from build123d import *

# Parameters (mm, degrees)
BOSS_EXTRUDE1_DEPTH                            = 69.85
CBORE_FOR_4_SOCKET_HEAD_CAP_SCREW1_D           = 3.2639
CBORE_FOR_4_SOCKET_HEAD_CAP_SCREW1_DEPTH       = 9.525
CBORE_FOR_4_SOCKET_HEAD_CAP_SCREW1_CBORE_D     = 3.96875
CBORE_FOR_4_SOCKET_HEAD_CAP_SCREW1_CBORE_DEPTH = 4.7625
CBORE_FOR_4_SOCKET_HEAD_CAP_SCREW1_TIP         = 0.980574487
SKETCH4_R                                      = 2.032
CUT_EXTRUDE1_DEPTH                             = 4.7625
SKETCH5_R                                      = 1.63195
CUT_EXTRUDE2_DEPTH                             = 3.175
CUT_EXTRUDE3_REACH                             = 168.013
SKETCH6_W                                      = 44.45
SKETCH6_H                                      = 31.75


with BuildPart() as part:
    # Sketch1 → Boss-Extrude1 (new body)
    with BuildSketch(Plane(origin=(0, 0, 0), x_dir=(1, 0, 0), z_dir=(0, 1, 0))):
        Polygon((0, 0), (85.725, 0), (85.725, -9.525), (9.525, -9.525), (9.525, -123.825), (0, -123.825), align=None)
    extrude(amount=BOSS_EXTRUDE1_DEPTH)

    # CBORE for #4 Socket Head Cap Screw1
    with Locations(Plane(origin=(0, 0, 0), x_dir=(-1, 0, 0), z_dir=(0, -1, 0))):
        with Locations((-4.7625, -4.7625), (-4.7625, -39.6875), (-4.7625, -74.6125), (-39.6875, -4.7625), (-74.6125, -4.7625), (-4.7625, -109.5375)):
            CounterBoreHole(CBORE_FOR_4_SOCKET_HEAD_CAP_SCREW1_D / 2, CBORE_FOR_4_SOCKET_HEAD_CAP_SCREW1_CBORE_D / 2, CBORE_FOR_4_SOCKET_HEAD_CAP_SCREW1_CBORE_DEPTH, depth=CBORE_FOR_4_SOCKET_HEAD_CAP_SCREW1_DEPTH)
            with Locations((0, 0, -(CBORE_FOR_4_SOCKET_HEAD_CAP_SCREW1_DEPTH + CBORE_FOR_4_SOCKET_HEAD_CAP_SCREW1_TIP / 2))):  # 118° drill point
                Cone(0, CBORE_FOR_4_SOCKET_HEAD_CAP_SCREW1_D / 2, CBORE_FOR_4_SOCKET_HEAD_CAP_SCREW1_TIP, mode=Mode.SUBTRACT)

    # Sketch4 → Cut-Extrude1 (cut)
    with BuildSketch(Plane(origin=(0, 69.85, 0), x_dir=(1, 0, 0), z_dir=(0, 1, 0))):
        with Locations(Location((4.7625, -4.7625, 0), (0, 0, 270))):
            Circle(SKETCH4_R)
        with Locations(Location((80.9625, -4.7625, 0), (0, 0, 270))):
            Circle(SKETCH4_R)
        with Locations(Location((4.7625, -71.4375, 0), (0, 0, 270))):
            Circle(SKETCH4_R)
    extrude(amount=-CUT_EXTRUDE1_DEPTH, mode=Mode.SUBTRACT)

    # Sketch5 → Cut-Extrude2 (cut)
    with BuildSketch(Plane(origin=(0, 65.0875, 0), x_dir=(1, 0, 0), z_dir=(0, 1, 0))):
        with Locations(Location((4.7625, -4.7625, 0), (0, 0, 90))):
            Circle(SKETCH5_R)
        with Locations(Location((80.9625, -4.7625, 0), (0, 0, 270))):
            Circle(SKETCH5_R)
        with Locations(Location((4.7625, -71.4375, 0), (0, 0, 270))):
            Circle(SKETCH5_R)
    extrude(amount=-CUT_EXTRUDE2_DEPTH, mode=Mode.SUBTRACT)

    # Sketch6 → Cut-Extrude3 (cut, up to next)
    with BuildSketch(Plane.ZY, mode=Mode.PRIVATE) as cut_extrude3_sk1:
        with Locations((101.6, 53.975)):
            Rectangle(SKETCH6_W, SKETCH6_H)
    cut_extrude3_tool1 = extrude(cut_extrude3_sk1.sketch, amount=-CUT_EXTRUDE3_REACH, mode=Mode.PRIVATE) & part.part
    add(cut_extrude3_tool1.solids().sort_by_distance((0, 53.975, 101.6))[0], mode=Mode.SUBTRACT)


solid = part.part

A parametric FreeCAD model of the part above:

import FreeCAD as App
import Part
import Sketcher

V = App.Vector
Q = App.Units.Quantity


def add_polygon(sketch, points):
    """Adds a closed chain of lines whose ends are joined by coincident constraints."""
    first, n = sketch.GeometryCount, len(points)
    for a, b in zip(points, points[1:] + points[:1]):
        sketch.addGeometry(Part.LineSegment(App.Vector(*a, 0), App.Vector(*b, 0)), False)
    for i in range(n):
        sketch.addConstraint(Sketcher.Constraint("Coincident", first + i, 2, first + (i + 1) % n, 1))

doc = App.newDocument("Part")
params = doc.addObject("Spreadsheet::Sheet", "Params")
for row, (alias, value) in enumerate([
    ("sketch1_width", "3 in"),
    ("sketch1_height", "4.5 in"),
    ("sketch1_width2", "3.375 in"),
    ("pad1_length", "2.75 in"),
    ("hole_diameter", "0.1285 in"),
    ("hole_depth", "0.375 in"),
    ("hole_cbore_diameter", "0.15625 in"),
    ("hole_cbore_depth", "0.1875 in"),
    ("sketch3_diameter", "0.16 in"),
    ("pocket1_length", "0.1875 in"),
    ("pocket2_length", "0.125 in"),
    ("sketch5_width", "1.25 in"),
    ("sketch5_height", "1.75 in"),
], start=1):
    params.set(f"A{row}", alias)
    params.set(f"B{row}", "=" + value)
    params.setAlias(f"B{row}", alias)

body = doc.addObject("PartDesign::Body", "Body")

# Sketch on XZ plane
sketch1 = doc.addObject("Sketcher::SketchObject", "Sketch")
body.addObject(sketch1)
sketch1.AttachmentSupport = (doc.XZ_Plane, [""])
sketch1.MapMode = "FlatFace"
add_polygon(sketch1, [(86, 0), (0, 0), (0, 124), (10, 124), (10, 10), (86, 10)])  # lines 0-5
sketch1.addConstraint([
    Sketcher.Constraint("Horizontal", 0),
    Sketcher.Constraint("Vertical", 1),
    Sketcher.Constraint("Horizontal", 2),
    Sketcher.Constraint("Vertical", 3),
    Sketcher.Constraint("Horizontal", 4),
    Sketcher.Constraint("Vertical", 5),
    Sketcher.Constraint("Coincident", 0, 2, -1, 1),
    Sketcher.Constraint("Equal", 2, 5),
    Sketcher.Constraint("DistanceX", 4, 1, 4, 2, Q("3 in")),
    Sketcher.Constraint("DistanceY", 3, 2, 3, 1, Q("4.5 in")),
    Sketcher.Constraint("DistanceX", 0, 2, 0, 1, Q("3.375 in")),
])
sketch1.setExpression("Constraints[14]", "Params.sketch1_width")
sketch1.setExpression("Constraints[15]", "Params.sketch1_height")
sketch1.setExpression("Constraints[16]", "Params.sketch1_width2")
pad1 = doc.addObject("PartDesign::Pad", "Pad")
body.addObject(pad1)
pad1.Profile = sketch1
pad1.setExpression("Length", "Params.pad1_length")
pad1.Reversed = True

# Sketch on XZ plane
sketch2 = doc.addObject("Sketcher::SketchObject", "Sketch001")
body.addObject(sketch2)
sketch2.AttachmentSupport = (doc.XZ_Plane, [""])
sketch2.MapMode = "FlatFace"
sketch2.addGeometry([
    Part.Circle(V(4.8, 4.8, 0), V(0, 0, 1), 1.6),  # 0
    Part.Circle(V(4.8, 39.7, 0), V(0, 0, 1), 1.6),  # 1
    Part.Circle(V(4.8, 74.6, 0), V(0, 0, 1), 1.6),  # 2
    Part.Circle(V(39.7, 4.8, 0), V(0, 0, 1), 1.6),  # 3
    Part.Circle(V(74.6, 4.8, 0), V(0, 0, 1), 1.6),  # 4
    Part.Circle(V(4.8, 109.5, 0), V(0, 0, 1), 1.6),  # 5
], False)
sketch2.addConstraint([
    Sketcher.Constraint("Equal", 0, 1),
    Sketcher.Constraint("Equal", 1, 2),
    Sketcher.Constraint("Equal", 2, 3),
    Sketcher.Constraint("Equal", 3, 4),
    Sketcher.Constraint("Equal", 4, 5),
    Sketcher.Constraint("Horizontal", 0, 3, 3, 3),
    Sketcher.Constraint("Horizontal", 3, 3, 4, 3),
    Sketcher.Constraint("Vertical", 0, 3, 1, 3),
    Sketcher.Constraint("Vertical", 1, 3, 2, 3),
    Sketcher.Constraint("Vertical", 2, 3, 5, 3),
    Sketcher.Constraint("Diameter", 0, Q("0.1285 in")),
    Sketcher.Constraint("DistanceY", 0, 3, 2, 3, Q("2.75 in")),
    Sketcher.Constraint("DistanceX", 0, 3, 4, 3, Q("2.75 in")),
    Sketcher.Constraint("DistanceY", 1, 3, 5, 3, Q("2.75 in")),
    Sketcher.Constraint("DistanceX", -1, 1, 0, 3, Q("0.1875 in")),
    Sketcher.Constraint("DistanceY", -1, 1, 0, 3, Q("0.1875 in")),
    Sketcher.Constraint("DistanceY", -1, 1, 1, 3, Q("1.5625 in")),
    Sketcher.Constraint("DistanceX", -1, 1, 3, 3, Q("1.5625 in")),
])
doc.recompute()
hole = doc.addObject("PartDesign::Hole", "Hole")
body.addObject(hole)
hole.Profile = sketch2
hole.ThreadType = "None"
hole.setExpression("Diameter", "Params.hole_diameter")
hole.DepthType = "Dimension"
hole.setExpression("Depth", "Params.hole_depth")
hole.DrillPoint = "Angled"
hole.DrillPointAngle = 118
hole.HoleCutType = "Counterbore"
hole.setExpression("HoleCutDiameter", "Params.hole_cbore_diameter")
hole.setExpression("HoleCutDepth", "Params.hole_cbore_depth")

# Sketch on XZ plane
sketch3 = doc.addObject("Sketcher::SketchObject", "Sketch002")
body.addObject(sketch3)
sketch3.AttachmentSupport = (doc.XZ_Plane, [""])
sketch3.MapMode = "FlatFace"
sketch3.AttachmentOffset = App.Placement(V(0, 0, -2.75 * 25.4), App.Rotation())
sketch3.addGeometry([
    Part.Circle(V(4.8, 4.8, 0), V(0, 0, 1), 2),
    Part.Circle(V(81, 4.8, 0), V(0, 0, 1), 2),
    Part.Circle(V(4.8, 71.4, 0), V(0, 0, 1), 2),
], False)
sketch3.addConstraint([
    Sketcher.Constraint("Equal", 0, 1),
    Sketcher.Constraint("Equal", 1, 2),
    Sketcher.Constraint("Horizontal", 0, 3, 1, 3),
    Sketcher.Constraint("Vertical", 0, 3, 2, 3),
    Sketcher.Constraint("Diameter", 0, Q("0.16 in")),
    Sketcher.Constraint("DistanceX", 0, 3, 1, 3, Q("3 in")),
    Sketcher.Constraint("DistanceX", -1, 1, 0, 3, Q("0.1875 in")),
    Sketcher.Constraint("DistanceY", -1, 1, 0, 3, Q("0.1875 in")),
    Sketcher.Constraint("DistanceY", -1, 1, 2, 3, Q("2.8125 in")),
])
sketch3.setExpression("Constraints[4]", "Params.sketch3_diameter")
pocket1 = doc.addObject("PartDesign::Pocket", "Pocket")
body.addObject(pocket1)
pocket1.Profile = sketch3
pocket1.setExpression("Length", "Params.pocket1_length")
pocket1.Reversed = True

# Sketch on XZ plane
sketch4 = doc.addObject("Sketcher::SketchObject", "Sketch003")
body.addObject(sketch4)
sketch4.AttachmentSupport = (doc.XZ_Plane, [""])
sketch4.MapMode = "FlatFace"
sketch4.AttachmentOffset = App.Placement(V(0, 0, -2.5625 * 25.4), App.Rotation())
sketch4.addGeometry([
    Part.Circle(V(4.8, 4.8, 0), V(0, 0, 1), 1.6),
    Part.Circle(V(81, 4.8, 0), V(0, 0, 1), 1.6),
    Part.Circle(V(4.8, 71.4, 0), V(0, 0, 1), 1.6),
], False)
sketch4.addConstraint([
    Sketcher.Constraint("Equal", 0, 1),
    Sketcher.Constraint("Equal", 1, 2),
    Sketcher.Constraint("Horizontal", 0, 3, 1, 3),
    Sketcher.Constraint("Vertical", 0, 3, 2, 3),
    Sketcher.Constraint("DistanceX", 0, 3, 1, 3, Q("3 in")),
    Sketcher.Constraint("Diameter", 0, Q("0.1285 in")),
    Sketcher.Constraint("DistanceX", -1, 1, 0, 3, Q("0.1875 in")),
    Sketcher.Constraint("DistanceY", -1, 1, 0, 3, Q("0.1875 in")),
    Sketcher.Constraint("DistanceY", -1, 1, 2, 3, Q("2.8125 in")),
])
pocket2 = doc.addObject("PartDesign::Pocket", "Pocket001")
body.addObject(pocket2)
pocket2.Profile = sketch4
pocket2.setExpression("Length", "Params.pocket2_length")
pocket2.Reversed = True

# Sketch on YZ plane
sketch5 = doc.addObject("Sketcher::SketchObject", "Sketch004")
body.addObject(sketch5)
sketch5.AttachmentSupport = (doc.YZ_Plane, [""])
sketch5.MapMode = "FlatFace"
add_polygon(sketch5, [(70, 79), (38, 79), (38, 124), (70, 124)])  # lines 0-3
sketch5.addConstraint([
    Sketcher.Constraint("Horizontal", 0),
    Sketcher.Constraint("Vertical", 1),
    Sketcher.Constraint("Horizontal", 2),
    Sketcher.Constraint("Vertical", 3),
    Sketcher.Constraint("DistanceX", 0, 2, 0, 1, Q("1.25 in")),
    Sketcher.Constraint("DistanceY", 1, 1, 1, 2, Q("1.75 in")),
    Sketcher.Constraint("DistanceX", -1, 1, 0, 2, Q("1.5 in")),
    Sketcher.Constraint("DistanceY", -1, 1, 0, 2, Q("3.125 in")),
])
sketch5.setExpression("Constraints[8]", "Params.sketch5_width")
sketch5.setExpression("Constraints[9]", "Params.sketch5_height")
pocket3 = doc.addObject("PartDesign::Pocket", "Pocket002")
body.addObject(pocket3)
pocket3.Profile = sketch5
pocket3.Type = "UpToFirst"
pocket3.Reversed = True

doc.recompute()
